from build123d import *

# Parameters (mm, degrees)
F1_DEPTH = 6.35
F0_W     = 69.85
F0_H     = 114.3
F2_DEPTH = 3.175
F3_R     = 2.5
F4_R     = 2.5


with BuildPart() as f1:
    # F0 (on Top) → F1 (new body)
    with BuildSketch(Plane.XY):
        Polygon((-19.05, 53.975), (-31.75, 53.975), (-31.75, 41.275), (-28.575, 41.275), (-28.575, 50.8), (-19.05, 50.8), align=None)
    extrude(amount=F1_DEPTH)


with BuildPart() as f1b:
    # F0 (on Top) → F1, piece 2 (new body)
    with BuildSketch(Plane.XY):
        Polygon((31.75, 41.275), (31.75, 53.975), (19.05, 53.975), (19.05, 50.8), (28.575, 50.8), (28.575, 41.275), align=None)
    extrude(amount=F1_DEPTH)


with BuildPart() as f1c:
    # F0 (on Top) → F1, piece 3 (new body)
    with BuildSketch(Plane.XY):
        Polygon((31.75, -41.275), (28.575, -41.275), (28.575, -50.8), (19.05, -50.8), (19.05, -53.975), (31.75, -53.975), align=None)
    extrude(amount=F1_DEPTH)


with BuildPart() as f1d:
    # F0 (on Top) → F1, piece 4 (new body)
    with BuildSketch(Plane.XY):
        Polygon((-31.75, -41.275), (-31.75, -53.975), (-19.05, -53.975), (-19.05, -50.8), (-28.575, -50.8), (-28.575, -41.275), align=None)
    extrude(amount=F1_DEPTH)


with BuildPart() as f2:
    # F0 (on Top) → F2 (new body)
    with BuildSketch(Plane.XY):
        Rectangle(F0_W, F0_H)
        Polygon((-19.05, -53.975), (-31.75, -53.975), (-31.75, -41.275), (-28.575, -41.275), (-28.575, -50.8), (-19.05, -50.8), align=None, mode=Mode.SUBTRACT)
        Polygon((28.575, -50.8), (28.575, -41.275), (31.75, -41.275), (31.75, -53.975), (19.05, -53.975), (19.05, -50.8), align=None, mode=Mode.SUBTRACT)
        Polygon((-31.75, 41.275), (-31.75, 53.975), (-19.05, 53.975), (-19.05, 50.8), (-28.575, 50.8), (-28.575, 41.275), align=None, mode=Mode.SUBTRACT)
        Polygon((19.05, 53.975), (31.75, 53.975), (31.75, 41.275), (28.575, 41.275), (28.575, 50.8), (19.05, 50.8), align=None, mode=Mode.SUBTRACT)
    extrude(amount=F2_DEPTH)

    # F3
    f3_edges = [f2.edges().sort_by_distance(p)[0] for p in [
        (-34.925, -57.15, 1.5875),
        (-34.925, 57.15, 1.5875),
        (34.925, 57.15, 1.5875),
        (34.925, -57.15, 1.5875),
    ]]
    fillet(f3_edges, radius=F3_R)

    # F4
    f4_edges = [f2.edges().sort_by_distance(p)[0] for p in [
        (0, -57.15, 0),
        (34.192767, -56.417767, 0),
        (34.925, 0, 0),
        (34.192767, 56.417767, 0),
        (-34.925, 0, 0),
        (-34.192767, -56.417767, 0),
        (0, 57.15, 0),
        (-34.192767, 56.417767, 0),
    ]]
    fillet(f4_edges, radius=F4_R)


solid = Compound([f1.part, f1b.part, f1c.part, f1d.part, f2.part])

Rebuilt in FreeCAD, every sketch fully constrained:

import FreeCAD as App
import Part
import Sketcher
Q = App.Units.Quantity


def edges_at(feature, points):
    """Names of the edges that pass closest to the given points."""
    edges = feature.Shape.Edges
    near = lambda p: min(range(len(edges)), key=lambda i: edges[i].distToShape(Part.Vertex(*p))[0])
    return sorted({f"Edge{near(p) + 1}" for p in points})


def add_polygon(sketch, points):
    """Adds a closed chain of lines whose ends are joined by coincident constraints."""
    first, n = sketch.GeometryCount, len(points)
    for a, b in zip(points, points[1:] + points[:1]):
        sketch.addGeometry(Part.LineSegment(App.Vector(*a, 0), App.Vector(*b, 0)), False)
    for i in range(n):
        sketch.addConstraint(Sketcher.Constraint("Coincident", first + i, 2, first + (i + 1) % n, 1))

doc = App.newDocument("Part")
body = doc.addObject("PartDesign::Body", "Body")

# Sketch on XY plane
sketch1 = doc.addObject("Sketcher::SketchObject", "Sketch")
body.addObject(sketch1)
sketch1.AttachmentSupport = (doc.XY_Plane, [""])
sketch1.MapMode = "FlatFace"
add_polygon(sketch1, [(-19.05, 53.975), (-31.75, 53.975), (-31.75, 41.275), (-28.575, 41.275), (-28.575, 50.8), (-19.05, 50.8)])  # lines 0-5
sketch1.addConstraint([
    Sketcher.Constraint("Horizontal", 0),
    Sketcher.Constraint("Vertical", 1),
    Sketcher.Constraint("Horizontal", 2),
    Sketcher.Constraint("Vertical", 3),
    Sketcher.Constraint("Horizontal", 4),
    Sketcher.Constraint("Vertical", 5),
    Sketcher.Constraint("Equal", 0, 1),
    Sketcher.Constraint("Equal", 4, 3),
    Sketcher.Constraint("DistanceX", 0, 2, 0, 1, Q("0.5 in")),
    Sketcher.Constraint("DistanceY", -1, 1, 3, 2, Q("2 in")),
    Sketcher.Constraint("DistanceX", 2, 1, 2, 2, Q("0.125 in")),
    Sketcher.Constraint("DistanceX", 0, 2, -1, 1, Q("1.25 in")),
])
pad1 = doc.addObject("PartDesign::Pad", "Pad")
body.addObject(pad1)
pad1.Profile = sketch1
pad1.Length = Q("0.25 in")
body2 = doc.addObject("PartDesign::Body", "Body001")

# Sketch on XY plane
sketch2 = doc.addObject("Sketcher::SketchObject", "Sketch001")
body2.addObject(sketch2)
sketch2.AttachmentSupport = (doc.getObject("XY_Plane001"), [""])
sketch2.MapMode = "FlatFace"
add_polygon(sketch2, [(31.75, 41.275), (31.75, 53.975), (19.05, 53.975), (19.05, 50.8), (28.575, 50.8), (28.575, 41.275)])  # lines 0-5
sketch2.addConstraint([
    Sketcher.Constraint("Vertical", 0),
    Sketcher.Constraint("Horizontal", 1),
    Sketcher.Constraint("Vertical", 2),
    Sketcher.Constraint("Horizontal", 3),
    Sketcher.Constraint("Vertical", 4),
    Sketcher.Constraint("Horizontal", 5),
    Sketcher.Constraint("Equal", 1, 0),
    Sketcher.Constraint("Equal", 5, 2),
    Sketcher.Constraint("DistanceX", 1, 2, 1, 1, Q("0.5 in")),
    Sketcher.Constraint("DistanceY", -1, 1, 2, 2, Q("2 in")),
    Sketcher.Constraint("DistanceX", 3, 1, 3, 2, Q("0.375 in")),
    Sketcher.Constraint("DistanceX", -1, 1, 0, 2, Q("1.25 in")),
])
pad2 = doc.addObject("PartDesign::Pad", "Pad001")
body2.addObject(pad2)
pad2.Profile = sketch2
pad2.Length = Q("0.25 in")
body3 = doc.addObject("PartDesign::Body", "Body002")

# Sketch on XY plane
sketch3 = doc.addObject("Sketcher::SketchObject", "Sketch002")
body3.addObject(sketch3)
sketch3.AttachmentSupport = (doc.getObject("XY_Plane002"), [""])
sketch3.MapMode = "FlatFace"
add_polygon(sketch3, [(31.75, -41.275), (28.575, -41.275), (28.575, -50.8), (19.05, -50.8), (19.05, -53.975), (31.75, -53.975)])  # lines 0-5
sketch3.addConstraint([
    Sketcher.Constraint("Horizontal", 0),
    Sketcher.Constraint("Vertical", 1),
    Sketcher.Constraint("Horizontal", 2),
    Sketcher.Constraint("Vertical", 3),
    Sketcher.Constraint("Horizontal", 4),
    Sketcher.Constraint("Vertical", 5),
    Sketcher.Constraint("Equal", 2, 1),
    Sketcher.Constraint("Equal", 0, 3),
    Sketcher.Constraint("DistanceX", 4, 1, 4, 2, Q("0.5 in")),
    Sketcher.Constraint("DistanceY", 1, 2, -1, 1, Q("2 in")),
    Sketcher.Constraint("DistanceX", 0, 2, 0, 1, Q("0.125 in")),
    Sketcher.Constraint("DistanceX", -1, 1, 2, 2, Q("0.75 in")),
])
pad3 = doc.addObject("PartDesign::Pad", "Pad002")
body3.addObject(pad3)
pad3.Profile = sketch3
pad3.Length = Q("0.25 in")
body4 = doc.addObject("PartDesign::Body", "Body003")

# Sketch on XY plane
sketch4 = doc.addObject("Sketcher::SketchObject", "Sketch003")
body4.addObject(sketch4)
sketch4.AttachmentSupport = (doc.getObject("XY_Plane003"), [""])
sketch4.MapMode = "FlatFace"
add_polygon(sketch4, [(-31.75, -41.275), (-31.75, -53.975), (-19.05, -53.975), (-19.05, -50.8), (-28.575, -50.8), (-28.575, -41.275)])  # lines 0-5
sketch4.addConstraint([
    Sketcher.Constraint("Vertical", 0),
    Sketcher.Constraint("Horizontal", 1),
    Sketcher.Constraint("Vertical", 2),
    Sketcher.Constraint("Horizontal", 3),
    Sketcher.Constraint("Vertical", 4),
    Sketcher.Constraint("Horizontal", 5),
    Sketcher.Constraint("Equal", 1, 0),
    Sketcher.Constraint("Equal", 5, 2),
    Sketcher.Constraint("DistanceX", 1, 1, 1, 2, Q("0.5 in")),
    Sketcher.Constraint("DistanceY", 2, 2, -1, 1, Q("2 in")),
    Sketcher.Constraint("DistanceX", 3, 2, 3, 1, Q("0.375 in")),
    Sketcher.Constraint("DistanceX", 0, 2, -1, 1, Q("1.25 in")),
])
pad4 = doc.addObject("PartDesign::Pad", "Pad003")
body4.addObject(pad4)
pad4.Profile = sketch4
pad4.Length = Q("0.25 in")
body5 = doc.addObject("PartDesign::Body", "Body004")

# Sketch on XY plane
sketch5 = doc.addObject("Sketcher::SketchObject", "Sketch004")
body5.addObject(sketch5)
sketch5.AttachmentSupport = (doc.getObject("XY_Plane004"), [""])
sketch5.MapMode = "FlatFace"
add_polygon(sketch5, [(-34.925, 57.15), (-34.925, -57.15), (34.925, -57.15), (34.925, 57.15)])  # lines 0-3
add_polygon(sketch5, [(-19.05, -50.8), (-19.05, -53.975), (-31.75, -53.975), (-31.75, -41.275), (-28.575, -41.275), (-28.575, -50.8)])  # lines 4-9
add_polygon(sketch5, [(19.05, -50.8), (28.575, -50.8), (28.575, -41.275), (31.75, -41.275), (31.75, -53.975), (19.05, -53.975)])  # lines 10-15
add_polygon(sketch5, [(-28.575, 41.275), (-31.75, 41.275), (-31.75, 53.975), (-19.05, 53.975), (-19.05, 50.8), (-28.575, 50.8)])  # lines 16-21
add_polygon(sketch5, [(19.05, 50.8), (19.05, 53.975), (31.75, 53.975), (31.75, 41.275), (28.575, 41.275), (28.575, 50.8)])  # lines 22-27
sketch5.addConstraint([
    Sketcher.Constraint("Vertical", 0),
    Sketcher.Constraint("Horizontal", 1),
    Sketcher.Constraint("Vertical", 2),
    Sketcher.Constraint("Horizontal", 3),
    Sketcher.Constraint("Vertical", 4),
    Sketcher.Constraint("Horizontal", 5),
    Sketcher.Constraint("Vertical", 6),
    Sketcher.Constraint("Horizontal", 7),
    Sketcher.Constraint("Vertical", 8),
    Sketcher.Constraint("Horizontal", 9),
    Sketcher.Constraint("Horizontal", 10),
    Sketcher.Constraint("Vertical", 11),
    Sketcher.Constraint("Horizontal", 12),
    Sketcher.Constraint("Vertical", 13),
    Sketcher.Constraint("Horizontal", 14),
    Sketcher.Constraint("Vertical", 15),
    Sketcher.Constraint("Horizontal", 16),
    Sketcher.Constraint("Vertical", 17),
    Sketcher.Constraint("Horizontal", 18),
    Sketcher.Constraint("Vertical", 19),
    Sketcher.Constraint("Horizontal", 20),
    Sketcher.Constraint("Vertical", 21),
    Sketcher.Constraint("Vertical", 22),
    Sketcher.Constraint("Horizontal", 23),
    Sketcher.Constraint("Vertical", 24),
    Sketcher.Constraint("Horizontal", 25),
    Sketcher.Constraint("Vertical", 26),
    Sketcher.Constraint("Horizontal", 27),
    Sketcher.Constraint("Symmetric", 0, 2, 2, 2, -1, 1),
    Sketcher.Constraint("Symmetric", 12, 2, 16, 2, -1, 1),
    Sketcher.Constraint("Symmetric", 14, 2, 18, 2, -1, 1),
    Sketcher.Constraint("Symmetric", 10, 2, 20, 2, -1, 1),
    Sketcher.Constraint("Symmetric", 4, 2, 22, 2, -1, 1),
    Sketcher.Constraint("Symmetric", 6, 2, 24, 2, -1, 1),
    Sketcher.Constraint("Symmetric", 8, 2, 26, 2, -1, 1),
    Sketcher.Constraint("Symmetric", 8, 2, 10, 2, -2),
    Sketcher.Constraint("Symmetric", 6, 2, 12, 2, -2),
    Sketcher.Constraint("Symmetric", 4, 2, 14, 2, -2),
    Sketcher.Constraint("Equal", 25, 4),
    Sketcher.Constraint("Equal", 23, 6),
    Sketcher.Constraint("DistanceX", 5, 2, 5, 1, Q("0.5 in")),
    Sketcher.Constraint("DistanceY", 0, 2, 0, 1, Q("4.5 in")),
    Sketcher.Constraint("DistanceY", 8, 2, -1, 1, Q("2 in")),
    Sketcher.Constraint("DistanceX", 9, 2, 12, 2, Q("2 in")),
    Sketcher.Constraint("DistanceX", 1, 1, 1, 2, Q("2.75 in")),
    Sketcher.Constraint("DistanceX", 7, 2, 1, 2, Q("2.5 in")),
])
pad5 = doc.addObject("PartDesign::Pad", "Pad004")
body5.addObject(pad5)
pad5.Profile = sketch5
pad5.Length = Q("0.125 in")
doc.recompute()

fillet = doc.addObject("PartDesign::Fillet", "Fillet")
body5.addObject(fillet)
fillet.Base = (pad5, edges_at(pad5, [
    (-34.925, -57.15, 1.587),
    (-34.925, 57.15, 1.587),
    (34.925, 57.15, 1.587),
    (34.925, -57.15, 1.587),
]))
fillet.Radius = 2.5
doc.recompute()

fillet2 = doc.addObject("PartDesign::Fillet", "Fillet001")
body5.addObject(fillet2)
fillet2.Base = (fillet, edges_at(fillet, [
    (0, -57.15, 0),
    (34.193, -56.418, 0),
    (34.925, 0, 0),
    (34.193, 56.418, 0),
    (-34.925, 0, 0),
    (-34.193, -56.418, 0),
    (0, 57.15, 0),
    (-34.193, 56.418, 0),
]))
fillet2.Radius = 2.5

doc.recompute()
